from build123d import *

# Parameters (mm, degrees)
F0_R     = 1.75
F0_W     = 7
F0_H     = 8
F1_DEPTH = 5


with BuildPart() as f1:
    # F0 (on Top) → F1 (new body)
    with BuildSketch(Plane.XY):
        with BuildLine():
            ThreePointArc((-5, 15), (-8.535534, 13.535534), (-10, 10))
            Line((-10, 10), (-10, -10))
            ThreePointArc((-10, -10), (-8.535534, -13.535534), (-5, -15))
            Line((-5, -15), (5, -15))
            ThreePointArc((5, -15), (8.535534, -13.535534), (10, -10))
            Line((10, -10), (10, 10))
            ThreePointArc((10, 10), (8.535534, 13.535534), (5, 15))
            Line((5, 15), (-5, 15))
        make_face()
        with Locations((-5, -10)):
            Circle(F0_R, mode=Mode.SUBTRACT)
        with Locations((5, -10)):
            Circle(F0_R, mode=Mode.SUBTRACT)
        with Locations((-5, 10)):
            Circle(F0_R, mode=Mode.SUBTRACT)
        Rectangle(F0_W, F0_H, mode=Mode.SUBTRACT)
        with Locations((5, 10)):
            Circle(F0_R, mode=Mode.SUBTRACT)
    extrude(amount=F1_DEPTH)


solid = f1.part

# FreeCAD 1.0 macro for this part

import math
import FreeCAD as App
import Part
import Sketcher

V = App.Vector
Q = App.Units.Quantity


def add_polygon(sketch, points):
    """Adds a closed chain of lines whose ends are joined by coincident constraints."""
    first, n = sketch.GeometryCount, len(points)
    for a, b in zip(points, points[1:] + points[:1]):
        sketch.addGeometry(Part.LineSegment(App.Vector(*a, 0), App.Vector(*b, 0)), False)
    for i in range(n):
        sketch.addConstraint(Sketcher.Constraint("Coincident", first + i, 2, first + (i + 1) % n, 1))

doc = App.newDocument("Part")
body = doc.addObject("PartDesign::Body", "Body")

# Sketch on XY plane
sketch1 = body.newObject("Sketcher::SketchObject", "Sketch")
sketch1.AttachmentSupport = (doc.getObject("XY_Plane"), [""])
sketch1.MapMode = "FlatFace"
sketch1.addGeometry(Part.ArcOfCircle(Part.Circle(V(-5, 10, 0), V(0, 0, 1), 5), math.radians(90), math.radians(180)), False)  # 0
sketch1.addGeometry(Part.LineSegment(V(-10, 10, 0), V(-10, -10, 0)), False)  # 1
sketch1.addGeometry(Part.ArcOfCircle(Part.Circle(V(-5, -10, 0), V(0, 0, 1), 5), math.radians(180), math.radians(270)), False)  # 2
sketch1.addGeometry(Part.LineSegment(V(-5, -15, 0), V(5, -15, 0)), False)  # 3
sketch1.addGeometry(Part.ArcOfCircle(Part.Circle(V(5, -10, 0), V(0, 0, 1), 5), math.radians(-90), math.radians(0)), False)  # 4
sketch1.addGeometry(Part.LineSegment(V(10, -10, 0), V(10, 10, 0)), False)  # 5
sketch1.addGeometry(Part.ArcOfCircle(Part.Circle(V(5, 10, 0), V(0, 0, 1), 5), math.radians(0), math.radians(90)), False)  # 6
sketch1.addGeometry(Part.LineSegment(V(5, 15, 0), V(-5, 15, 0)), False)  # 7
sketch1.addGeometry(Part.Circle(V(-5, -10, 0), V(0, 0, 1), 1.8), False)  # 8
sketch1.addGeometry(Part.Circle(V(5, -10, 0), V(0, 0, 1), 1.8), False)  # 9
sketch1.addGeometry(Part.Circle(V(-5, 10, 0), V(0, 0, 1), 1.8), False)  # 10
add_polygon(sketch1, [(3.5, -4), (-3.5, -4), (-3.5, 4), (3.5, 4)])  # lines 11-14
sketch1.addGeometry(Part.Circle(V(5, 10, 0), V(0, 0, 1), 1.8), False)  # 15
sketch1.addConstraint(Sketcher.Constraint("Tangent", 0, 2, 1, 1))
sketch1.addConstraint(Sketcher.Constraint("Tangent", 1, 2, 2, 1))
sketch1.addConstraint(Sketcher.Constraint("Tangent", 2, 2, 3, 1))
sketch1.addConstraint(Sketcher.Constraint("Tangent", 3, 2, 4, 1))
sketch1.addConstraint(Sketcher.Constraint("Tangent", 4, 2, 5, 1))
sketch1.addConstraint(Sketcher.Constraint("Tangent", 5, 2, 6, 1))
sketch1.addConstraint(Sketcher.Constraint("Tangent", 6, 2, 7, 1))
sketch1.addConstraint(Sketcher.Constraint("Tangent", 7, 2, 0, 1))
sketch1.addConstraint(Sketcher.Constraint("Vertical", 1))
sketch1.addConstraint(Sketcher.Constraint("Horizontal", 3))
sketch1.addConstraint(Sketcher.Constraint("Vertical", 5))
sketch1.addConstraint(Sketcher.Constraint("Horizontal", 7))
sketch1.addConstraint(Sketcher.Constraint("Horizontal", 11))
sketch1.addConstraint(Sketcher.Constraint("Vertical", 12))
sketch1.addConstraint(Sketcher.Constraint("Horizontal", 13))
sketch1.addConstraint(Sketcher.Constraint("Vertical", 14))
sketch1.addConstraint(Sketcher.Constraint("Coincident", 8, 3, 2, 3))
sketch1.addConstraint(Sketcher.Constraint("Coincident", 9, 3, 4, 3))
sketch1.addConstraint(Sketcher.Constraint("Coincident", 10, 3, 0, 3))
sketch1.addConstraint(Sketcher.Constraint("Coincident", 15, 3, 6, 3))
sketch1.addConstraint(Sketcher.Constraint("Equal", 0, 2))
sketch1.addConstraint(Sketcher.Constraint("Equal", 2, 4))
sketch1.addConstraint(Sketcher.Constraint("Equal", 4, 6))
sketch1.addConstraint(Sketcher.Constraint("Equal", 8, 9))
sketch1.addConstraint(Sketcher.Constraint("Equal", 9, 10))
sketch1.addConstraint(Sketcher.Constraint("Equal", 10, 15))
sketch1.addConstraint(Sketcher.Constraint("Symmetric", 0, 3, 4, 3, -1, 1))
sketch1.addConstraint(Sketcher.Constraint("Symmetric", 11, 2, 13, 2, -1, 1))
sketch1.addConstraint(Sketcher.Constraint("Radius", 0, Q("5 mm")))
sketch1.addConstraint(Sketcher.Constraint("Diameter", 8, Q("3.5 mm")))
sketch1.addConstraint(Sketcher.Constraint("DistanceX", 3, 1, 3, 2, Q("10 mm")))
sketch1.addConstraint(Sketcher.Constraint("DistanceX", 11, 2, 11, 1, Q("7 mm")))
sketch1.addConstraint(Sketcher.Constraint("DistanceY", 1, 2, 1, 1, Q("20 mm")))
sketch1.addConstraint(Sketcher.Constraint("DistanceY", 12, 1, 12, 2, Q("8 mm")))
pad1 = body.newObject("PartDesign::Pad", "Pad")
pad1.Profile = sketch1
pad1.Length = 5

doc.recompute()
